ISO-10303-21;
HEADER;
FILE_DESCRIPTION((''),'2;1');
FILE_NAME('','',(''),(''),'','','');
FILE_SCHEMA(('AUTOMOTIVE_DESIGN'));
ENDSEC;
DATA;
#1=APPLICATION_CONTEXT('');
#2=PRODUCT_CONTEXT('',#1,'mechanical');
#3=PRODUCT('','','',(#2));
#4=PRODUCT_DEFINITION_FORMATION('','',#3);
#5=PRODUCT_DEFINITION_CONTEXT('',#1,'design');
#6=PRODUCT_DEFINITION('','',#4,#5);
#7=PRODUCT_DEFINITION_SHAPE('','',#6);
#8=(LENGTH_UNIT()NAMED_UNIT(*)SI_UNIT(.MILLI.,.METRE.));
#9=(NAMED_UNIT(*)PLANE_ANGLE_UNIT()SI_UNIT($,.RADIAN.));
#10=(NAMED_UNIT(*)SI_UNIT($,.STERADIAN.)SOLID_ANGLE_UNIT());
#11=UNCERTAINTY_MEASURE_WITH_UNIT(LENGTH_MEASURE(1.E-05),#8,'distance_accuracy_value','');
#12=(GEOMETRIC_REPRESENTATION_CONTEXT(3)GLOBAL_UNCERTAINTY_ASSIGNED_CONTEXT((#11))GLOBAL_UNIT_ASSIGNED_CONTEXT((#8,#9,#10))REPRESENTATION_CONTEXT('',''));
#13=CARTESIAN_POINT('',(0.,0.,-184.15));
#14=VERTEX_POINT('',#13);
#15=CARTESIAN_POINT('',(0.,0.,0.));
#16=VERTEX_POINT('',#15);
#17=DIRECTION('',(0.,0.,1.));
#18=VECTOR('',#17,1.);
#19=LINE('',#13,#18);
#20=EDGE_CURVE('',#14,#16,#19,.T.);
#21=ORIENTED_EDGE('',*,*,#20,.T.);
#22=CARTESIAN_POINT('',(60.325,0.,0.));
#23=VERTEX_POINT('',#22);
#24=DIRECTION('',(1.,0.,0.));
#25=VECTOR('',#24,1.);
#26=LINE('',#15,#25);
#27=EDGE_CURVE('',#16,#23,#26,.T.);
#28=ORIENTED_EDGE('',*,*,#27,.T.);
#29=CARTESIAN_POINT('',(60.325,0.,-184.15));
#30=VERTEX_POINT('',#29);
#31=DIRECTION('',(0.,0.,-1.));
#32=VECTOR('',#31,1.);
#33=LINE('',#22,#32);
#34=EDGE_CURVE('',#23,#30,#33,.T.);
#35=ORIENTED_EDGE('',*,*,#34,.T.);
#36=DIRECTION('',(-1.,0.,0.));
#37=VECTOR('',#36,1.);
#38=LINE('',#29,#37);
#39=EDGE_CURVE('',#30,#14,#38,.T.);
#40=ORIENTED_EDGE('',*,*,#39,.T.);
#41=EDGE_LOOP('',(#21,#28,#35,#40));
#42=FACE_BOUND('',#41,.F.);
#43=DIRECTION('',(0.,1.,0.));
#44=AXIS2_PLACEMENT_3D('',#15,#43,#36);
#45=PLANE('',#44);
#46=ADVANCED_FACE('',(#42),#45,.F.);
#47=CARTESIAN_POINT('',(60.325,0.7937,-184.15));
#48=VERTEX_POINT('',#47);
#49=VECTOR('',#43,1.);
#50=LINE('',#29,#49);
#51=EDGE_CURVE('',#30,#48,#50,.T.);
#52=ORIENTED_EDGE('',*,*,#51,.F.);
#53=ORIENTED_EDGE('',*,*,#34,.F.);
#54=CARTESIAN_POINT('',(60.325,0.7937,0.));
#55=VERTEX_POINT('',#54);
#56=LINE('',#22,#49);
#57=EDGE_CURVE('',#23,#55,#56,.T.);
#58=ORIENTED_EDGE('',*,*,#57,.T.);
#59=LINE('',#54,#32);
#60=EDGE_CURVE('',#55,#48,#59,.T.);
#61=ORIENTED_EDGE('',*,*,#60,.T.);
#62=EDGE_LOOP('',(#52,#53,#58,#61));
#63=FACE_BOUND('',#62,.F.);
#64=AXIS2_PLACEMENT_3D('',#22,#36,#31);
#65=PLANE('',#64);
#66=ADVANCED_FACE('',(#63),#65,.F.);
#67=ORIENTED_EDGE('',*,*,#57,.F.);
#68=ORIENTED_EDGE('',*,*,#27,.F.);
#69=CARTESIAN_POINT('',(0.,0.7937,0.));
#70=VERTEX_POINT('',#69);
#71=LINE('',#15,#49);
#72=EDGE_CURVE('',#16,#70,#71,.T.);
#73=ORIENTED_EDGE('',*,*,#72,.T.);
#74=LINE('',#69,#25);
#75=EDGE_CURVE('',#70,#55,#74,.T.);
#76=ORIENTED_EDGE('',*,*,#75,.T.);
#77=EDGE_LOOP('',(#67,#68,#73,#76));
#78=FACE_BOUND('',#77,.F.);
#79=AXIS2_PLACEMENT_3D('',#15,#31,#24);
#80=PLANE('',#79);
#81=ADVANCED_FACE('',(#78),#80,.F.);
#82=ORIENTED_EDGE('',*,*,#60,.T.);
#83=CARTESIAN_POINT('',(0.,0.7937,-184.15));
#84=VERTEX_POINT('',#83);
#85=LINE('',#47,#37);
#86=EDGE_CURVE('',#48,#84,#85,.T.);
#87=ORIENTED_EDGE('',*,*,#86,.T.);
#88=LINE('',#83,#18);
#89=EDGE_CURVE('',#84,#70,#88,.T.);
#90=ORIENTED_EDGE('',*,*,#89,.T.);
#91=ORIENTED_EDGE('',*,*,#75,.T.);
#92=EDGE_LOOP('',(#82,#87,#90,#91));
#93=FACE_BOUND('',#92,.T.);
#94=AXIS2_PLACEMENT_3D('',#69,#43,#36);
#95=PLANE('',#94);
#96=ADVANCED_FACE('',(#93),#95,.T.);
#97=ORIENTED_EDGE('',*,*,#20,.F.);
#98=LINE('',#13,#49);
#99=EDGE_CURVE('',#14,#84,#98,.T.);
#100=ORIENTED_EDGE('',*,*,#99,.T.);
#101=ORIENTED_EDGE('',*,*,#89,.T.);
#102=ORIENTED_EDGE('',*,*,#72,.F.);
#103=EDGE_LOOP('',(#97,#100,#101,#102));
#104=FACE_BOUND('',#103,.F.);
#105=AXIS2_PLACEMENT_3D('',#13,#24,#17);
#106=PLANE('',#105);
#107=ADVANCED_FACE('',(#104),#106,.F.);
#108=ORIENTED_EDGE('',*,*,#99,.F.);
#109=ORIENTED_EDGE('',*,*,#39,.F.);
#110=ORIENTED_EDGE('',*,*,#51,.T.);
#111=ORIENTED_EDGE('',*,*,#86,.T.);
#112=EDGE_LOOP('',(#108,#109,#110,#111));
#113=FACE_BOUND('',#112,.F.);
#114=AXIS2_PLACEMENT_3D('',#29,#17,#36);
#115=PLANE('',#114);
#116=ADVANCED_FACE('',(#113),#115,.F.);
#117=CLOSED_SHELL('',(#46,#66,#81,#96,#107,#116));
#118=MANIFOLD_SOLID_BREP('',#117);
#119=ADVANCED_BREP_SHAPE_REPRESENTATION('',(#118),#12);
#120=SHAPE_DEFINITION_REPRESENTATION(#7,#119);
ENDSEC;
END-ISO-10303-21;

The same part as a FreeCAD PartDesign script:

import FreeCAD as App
import Part
import Sketcher

V = App.Vector
Q = App.Units.Quantity


def add_polygon(sketch, points):
    """Adds a closed chain of lines whose ends are joined by coincident constraints."""
    first, n = sketch.GeometryCount, len(points)
    for a, b in zip(points, points[1:] + points[:1]):
        sketch.addGeometry(Part.LineSegment(App.Vector(*a, 0), App.Vector(*b, 0)), False)
    for i in range(n):
        sketch.addConstraint(Sketcher.Constraint("Coincident", first + i, 2, first + (i + 1) % n, 1))

doc = App.newDocument("Part")
body = doc.addObject("PartDesign::Body", "Body")

# Sketch on XZ plane
sketch1 = doc.addObject("Sketcher::SketchObject", "Sketch")
body.addObject(sketch1)
sketch1.AttachmentSupport = (doc.XZ_Plane, [""])
sketch1.MapMode = "FlatFace"
add_polygon(sketch1, [(0, -184), (0, 0), (60, 0), (60, -184)])  # lines 0-3
sketch1.addConstraint(Sketcher.Constraint("Vertical", 0))
sketch1.addConstraint(Sketcher.Constraint("Horizontal", 1))
sketch1.addConstraint(Sketcher.Constraint("Vertical", 2))
sketch1.addConstraint(Sketcher.Constraint("Horizontal", 3))
sketch1.addConstraint(Sketcher.Constraint("Coincident", 0, 2, -1, 1))
sketch1.addConstraint(Sketcher.Constraint("DistanceY", 0, 1, 0, 2, Q("7.25 in")))
sketch1.addConstraint(Sketcher.Constraint("DistanceX", 1, 1, 1, 2, Q("2.375 in")))
pad1 = doc.addObject("PartDesign::Pad", "Pad")
body.addObject(pad1)
pad1.Profile = sketch1
pad1.Length = Q("0.031248 in")
pad1.Reversed = True

doc.recompute()
